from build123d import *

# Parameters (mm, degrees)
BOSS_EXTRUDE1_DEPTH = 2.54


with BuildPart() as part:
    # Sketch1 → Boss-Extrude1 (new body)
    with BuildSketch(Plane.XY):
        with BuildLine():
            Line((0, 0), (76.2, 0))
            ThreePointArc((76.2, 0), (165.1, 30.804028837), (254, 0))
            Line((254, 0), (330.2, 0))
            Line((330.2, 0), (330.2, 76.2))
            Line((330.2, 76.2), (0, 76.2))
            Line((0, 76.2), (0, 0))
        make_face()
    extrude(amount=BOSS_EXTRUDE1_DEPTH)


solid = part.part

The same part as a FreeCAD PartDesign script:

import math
import FreeCAD as App
import Part
import Sketcher

V = App.Vector
Q = App.Units.Quantity

doc = App.newDocument("Part")
body = doc.addObject("PartDesign::Body", "Body")

# Sketch on XY plane
sketch1 = body.newObject("Sketcher::SketchObject", "Sketch")
sketch1.AttachmentSupport = (doc.getObject("XY_Plane"), [""])
sketch1.MapMode = "FlatFace"
sketch1.addGeometry([
    Part.LineSegment(V(0, 0, 0), V(76.2, 0, 0)),  # 0
    Part.ArcOfCircle(Part.Circle(V(165.1, -112.880069, 0), V(0, 0, 1), 143.684098), math.radians(51.777392), math.radians(128.222608)),  # 1
    Part.LineSegment(V(254, 0, 0), V(330.2, 0, 0)),  # 2
    Part.LineSegment(V(330.2, 0, 0), V(330.2, 76.2, 0)),  # 3
    Part.LineSegment(V(330.2, 76.2, 0), V(0, 76.2, 0)),  # 4
    Part.LineSegment(V(0, 76.2, 0), V(0, 0, 0)),  # 5
], False)
sketch1.addConstraint([
    Sketcher.Constraint("Coincident", 0, 2, 1, 2),
    Sketcher.Constraint("Coincident", 1, 1, 2, 1),
    Sketcher.Constraint("Coincident", 2, 2, 3, 1),
    Sketcher.Constraint("Coincident", 3, 2, 4, 1),
    Sketcher.Constraint("Coincident", 4, 2, 5, 1),
    Sketcher.Constraint("Coincident", 5, 2, 0, 1),
    Sketcher.Constraint("Horizontal", 0),
    Sketcher.Constraint("Horizontal", 2),
    Sketcher.Constraint("Vertical", 3),
    Sketcher.Constraint("Horizontal", 4),
    Sketcher.Constraint("Vertical", 5),
    Sketcher.Constraint("Coincident", 5, 2, -1, 1),
    Sketcher.Constraint("PointOnObject", 1, 1, -1),
    Sketcher.Constraint("Equal", 0, 2),
    Sketcher.Constraint("Equal", 2, 3),
    Sketcher.Constraint("DistanceX", 0, 1, 0, 2, Q("3 in")),
    Sketcher.Constraint("DistanceX", 4, 2, 4, 1, Q("13 in")),
    Sketcher.Constraint("Radius", 1, 143.684098),
])
pad1 = body.newObject("PartDesign::Pad", "Pad")
pad1.Profile = sketch1
pad1.Length = Q("0.1 in")

doc.recompute()
